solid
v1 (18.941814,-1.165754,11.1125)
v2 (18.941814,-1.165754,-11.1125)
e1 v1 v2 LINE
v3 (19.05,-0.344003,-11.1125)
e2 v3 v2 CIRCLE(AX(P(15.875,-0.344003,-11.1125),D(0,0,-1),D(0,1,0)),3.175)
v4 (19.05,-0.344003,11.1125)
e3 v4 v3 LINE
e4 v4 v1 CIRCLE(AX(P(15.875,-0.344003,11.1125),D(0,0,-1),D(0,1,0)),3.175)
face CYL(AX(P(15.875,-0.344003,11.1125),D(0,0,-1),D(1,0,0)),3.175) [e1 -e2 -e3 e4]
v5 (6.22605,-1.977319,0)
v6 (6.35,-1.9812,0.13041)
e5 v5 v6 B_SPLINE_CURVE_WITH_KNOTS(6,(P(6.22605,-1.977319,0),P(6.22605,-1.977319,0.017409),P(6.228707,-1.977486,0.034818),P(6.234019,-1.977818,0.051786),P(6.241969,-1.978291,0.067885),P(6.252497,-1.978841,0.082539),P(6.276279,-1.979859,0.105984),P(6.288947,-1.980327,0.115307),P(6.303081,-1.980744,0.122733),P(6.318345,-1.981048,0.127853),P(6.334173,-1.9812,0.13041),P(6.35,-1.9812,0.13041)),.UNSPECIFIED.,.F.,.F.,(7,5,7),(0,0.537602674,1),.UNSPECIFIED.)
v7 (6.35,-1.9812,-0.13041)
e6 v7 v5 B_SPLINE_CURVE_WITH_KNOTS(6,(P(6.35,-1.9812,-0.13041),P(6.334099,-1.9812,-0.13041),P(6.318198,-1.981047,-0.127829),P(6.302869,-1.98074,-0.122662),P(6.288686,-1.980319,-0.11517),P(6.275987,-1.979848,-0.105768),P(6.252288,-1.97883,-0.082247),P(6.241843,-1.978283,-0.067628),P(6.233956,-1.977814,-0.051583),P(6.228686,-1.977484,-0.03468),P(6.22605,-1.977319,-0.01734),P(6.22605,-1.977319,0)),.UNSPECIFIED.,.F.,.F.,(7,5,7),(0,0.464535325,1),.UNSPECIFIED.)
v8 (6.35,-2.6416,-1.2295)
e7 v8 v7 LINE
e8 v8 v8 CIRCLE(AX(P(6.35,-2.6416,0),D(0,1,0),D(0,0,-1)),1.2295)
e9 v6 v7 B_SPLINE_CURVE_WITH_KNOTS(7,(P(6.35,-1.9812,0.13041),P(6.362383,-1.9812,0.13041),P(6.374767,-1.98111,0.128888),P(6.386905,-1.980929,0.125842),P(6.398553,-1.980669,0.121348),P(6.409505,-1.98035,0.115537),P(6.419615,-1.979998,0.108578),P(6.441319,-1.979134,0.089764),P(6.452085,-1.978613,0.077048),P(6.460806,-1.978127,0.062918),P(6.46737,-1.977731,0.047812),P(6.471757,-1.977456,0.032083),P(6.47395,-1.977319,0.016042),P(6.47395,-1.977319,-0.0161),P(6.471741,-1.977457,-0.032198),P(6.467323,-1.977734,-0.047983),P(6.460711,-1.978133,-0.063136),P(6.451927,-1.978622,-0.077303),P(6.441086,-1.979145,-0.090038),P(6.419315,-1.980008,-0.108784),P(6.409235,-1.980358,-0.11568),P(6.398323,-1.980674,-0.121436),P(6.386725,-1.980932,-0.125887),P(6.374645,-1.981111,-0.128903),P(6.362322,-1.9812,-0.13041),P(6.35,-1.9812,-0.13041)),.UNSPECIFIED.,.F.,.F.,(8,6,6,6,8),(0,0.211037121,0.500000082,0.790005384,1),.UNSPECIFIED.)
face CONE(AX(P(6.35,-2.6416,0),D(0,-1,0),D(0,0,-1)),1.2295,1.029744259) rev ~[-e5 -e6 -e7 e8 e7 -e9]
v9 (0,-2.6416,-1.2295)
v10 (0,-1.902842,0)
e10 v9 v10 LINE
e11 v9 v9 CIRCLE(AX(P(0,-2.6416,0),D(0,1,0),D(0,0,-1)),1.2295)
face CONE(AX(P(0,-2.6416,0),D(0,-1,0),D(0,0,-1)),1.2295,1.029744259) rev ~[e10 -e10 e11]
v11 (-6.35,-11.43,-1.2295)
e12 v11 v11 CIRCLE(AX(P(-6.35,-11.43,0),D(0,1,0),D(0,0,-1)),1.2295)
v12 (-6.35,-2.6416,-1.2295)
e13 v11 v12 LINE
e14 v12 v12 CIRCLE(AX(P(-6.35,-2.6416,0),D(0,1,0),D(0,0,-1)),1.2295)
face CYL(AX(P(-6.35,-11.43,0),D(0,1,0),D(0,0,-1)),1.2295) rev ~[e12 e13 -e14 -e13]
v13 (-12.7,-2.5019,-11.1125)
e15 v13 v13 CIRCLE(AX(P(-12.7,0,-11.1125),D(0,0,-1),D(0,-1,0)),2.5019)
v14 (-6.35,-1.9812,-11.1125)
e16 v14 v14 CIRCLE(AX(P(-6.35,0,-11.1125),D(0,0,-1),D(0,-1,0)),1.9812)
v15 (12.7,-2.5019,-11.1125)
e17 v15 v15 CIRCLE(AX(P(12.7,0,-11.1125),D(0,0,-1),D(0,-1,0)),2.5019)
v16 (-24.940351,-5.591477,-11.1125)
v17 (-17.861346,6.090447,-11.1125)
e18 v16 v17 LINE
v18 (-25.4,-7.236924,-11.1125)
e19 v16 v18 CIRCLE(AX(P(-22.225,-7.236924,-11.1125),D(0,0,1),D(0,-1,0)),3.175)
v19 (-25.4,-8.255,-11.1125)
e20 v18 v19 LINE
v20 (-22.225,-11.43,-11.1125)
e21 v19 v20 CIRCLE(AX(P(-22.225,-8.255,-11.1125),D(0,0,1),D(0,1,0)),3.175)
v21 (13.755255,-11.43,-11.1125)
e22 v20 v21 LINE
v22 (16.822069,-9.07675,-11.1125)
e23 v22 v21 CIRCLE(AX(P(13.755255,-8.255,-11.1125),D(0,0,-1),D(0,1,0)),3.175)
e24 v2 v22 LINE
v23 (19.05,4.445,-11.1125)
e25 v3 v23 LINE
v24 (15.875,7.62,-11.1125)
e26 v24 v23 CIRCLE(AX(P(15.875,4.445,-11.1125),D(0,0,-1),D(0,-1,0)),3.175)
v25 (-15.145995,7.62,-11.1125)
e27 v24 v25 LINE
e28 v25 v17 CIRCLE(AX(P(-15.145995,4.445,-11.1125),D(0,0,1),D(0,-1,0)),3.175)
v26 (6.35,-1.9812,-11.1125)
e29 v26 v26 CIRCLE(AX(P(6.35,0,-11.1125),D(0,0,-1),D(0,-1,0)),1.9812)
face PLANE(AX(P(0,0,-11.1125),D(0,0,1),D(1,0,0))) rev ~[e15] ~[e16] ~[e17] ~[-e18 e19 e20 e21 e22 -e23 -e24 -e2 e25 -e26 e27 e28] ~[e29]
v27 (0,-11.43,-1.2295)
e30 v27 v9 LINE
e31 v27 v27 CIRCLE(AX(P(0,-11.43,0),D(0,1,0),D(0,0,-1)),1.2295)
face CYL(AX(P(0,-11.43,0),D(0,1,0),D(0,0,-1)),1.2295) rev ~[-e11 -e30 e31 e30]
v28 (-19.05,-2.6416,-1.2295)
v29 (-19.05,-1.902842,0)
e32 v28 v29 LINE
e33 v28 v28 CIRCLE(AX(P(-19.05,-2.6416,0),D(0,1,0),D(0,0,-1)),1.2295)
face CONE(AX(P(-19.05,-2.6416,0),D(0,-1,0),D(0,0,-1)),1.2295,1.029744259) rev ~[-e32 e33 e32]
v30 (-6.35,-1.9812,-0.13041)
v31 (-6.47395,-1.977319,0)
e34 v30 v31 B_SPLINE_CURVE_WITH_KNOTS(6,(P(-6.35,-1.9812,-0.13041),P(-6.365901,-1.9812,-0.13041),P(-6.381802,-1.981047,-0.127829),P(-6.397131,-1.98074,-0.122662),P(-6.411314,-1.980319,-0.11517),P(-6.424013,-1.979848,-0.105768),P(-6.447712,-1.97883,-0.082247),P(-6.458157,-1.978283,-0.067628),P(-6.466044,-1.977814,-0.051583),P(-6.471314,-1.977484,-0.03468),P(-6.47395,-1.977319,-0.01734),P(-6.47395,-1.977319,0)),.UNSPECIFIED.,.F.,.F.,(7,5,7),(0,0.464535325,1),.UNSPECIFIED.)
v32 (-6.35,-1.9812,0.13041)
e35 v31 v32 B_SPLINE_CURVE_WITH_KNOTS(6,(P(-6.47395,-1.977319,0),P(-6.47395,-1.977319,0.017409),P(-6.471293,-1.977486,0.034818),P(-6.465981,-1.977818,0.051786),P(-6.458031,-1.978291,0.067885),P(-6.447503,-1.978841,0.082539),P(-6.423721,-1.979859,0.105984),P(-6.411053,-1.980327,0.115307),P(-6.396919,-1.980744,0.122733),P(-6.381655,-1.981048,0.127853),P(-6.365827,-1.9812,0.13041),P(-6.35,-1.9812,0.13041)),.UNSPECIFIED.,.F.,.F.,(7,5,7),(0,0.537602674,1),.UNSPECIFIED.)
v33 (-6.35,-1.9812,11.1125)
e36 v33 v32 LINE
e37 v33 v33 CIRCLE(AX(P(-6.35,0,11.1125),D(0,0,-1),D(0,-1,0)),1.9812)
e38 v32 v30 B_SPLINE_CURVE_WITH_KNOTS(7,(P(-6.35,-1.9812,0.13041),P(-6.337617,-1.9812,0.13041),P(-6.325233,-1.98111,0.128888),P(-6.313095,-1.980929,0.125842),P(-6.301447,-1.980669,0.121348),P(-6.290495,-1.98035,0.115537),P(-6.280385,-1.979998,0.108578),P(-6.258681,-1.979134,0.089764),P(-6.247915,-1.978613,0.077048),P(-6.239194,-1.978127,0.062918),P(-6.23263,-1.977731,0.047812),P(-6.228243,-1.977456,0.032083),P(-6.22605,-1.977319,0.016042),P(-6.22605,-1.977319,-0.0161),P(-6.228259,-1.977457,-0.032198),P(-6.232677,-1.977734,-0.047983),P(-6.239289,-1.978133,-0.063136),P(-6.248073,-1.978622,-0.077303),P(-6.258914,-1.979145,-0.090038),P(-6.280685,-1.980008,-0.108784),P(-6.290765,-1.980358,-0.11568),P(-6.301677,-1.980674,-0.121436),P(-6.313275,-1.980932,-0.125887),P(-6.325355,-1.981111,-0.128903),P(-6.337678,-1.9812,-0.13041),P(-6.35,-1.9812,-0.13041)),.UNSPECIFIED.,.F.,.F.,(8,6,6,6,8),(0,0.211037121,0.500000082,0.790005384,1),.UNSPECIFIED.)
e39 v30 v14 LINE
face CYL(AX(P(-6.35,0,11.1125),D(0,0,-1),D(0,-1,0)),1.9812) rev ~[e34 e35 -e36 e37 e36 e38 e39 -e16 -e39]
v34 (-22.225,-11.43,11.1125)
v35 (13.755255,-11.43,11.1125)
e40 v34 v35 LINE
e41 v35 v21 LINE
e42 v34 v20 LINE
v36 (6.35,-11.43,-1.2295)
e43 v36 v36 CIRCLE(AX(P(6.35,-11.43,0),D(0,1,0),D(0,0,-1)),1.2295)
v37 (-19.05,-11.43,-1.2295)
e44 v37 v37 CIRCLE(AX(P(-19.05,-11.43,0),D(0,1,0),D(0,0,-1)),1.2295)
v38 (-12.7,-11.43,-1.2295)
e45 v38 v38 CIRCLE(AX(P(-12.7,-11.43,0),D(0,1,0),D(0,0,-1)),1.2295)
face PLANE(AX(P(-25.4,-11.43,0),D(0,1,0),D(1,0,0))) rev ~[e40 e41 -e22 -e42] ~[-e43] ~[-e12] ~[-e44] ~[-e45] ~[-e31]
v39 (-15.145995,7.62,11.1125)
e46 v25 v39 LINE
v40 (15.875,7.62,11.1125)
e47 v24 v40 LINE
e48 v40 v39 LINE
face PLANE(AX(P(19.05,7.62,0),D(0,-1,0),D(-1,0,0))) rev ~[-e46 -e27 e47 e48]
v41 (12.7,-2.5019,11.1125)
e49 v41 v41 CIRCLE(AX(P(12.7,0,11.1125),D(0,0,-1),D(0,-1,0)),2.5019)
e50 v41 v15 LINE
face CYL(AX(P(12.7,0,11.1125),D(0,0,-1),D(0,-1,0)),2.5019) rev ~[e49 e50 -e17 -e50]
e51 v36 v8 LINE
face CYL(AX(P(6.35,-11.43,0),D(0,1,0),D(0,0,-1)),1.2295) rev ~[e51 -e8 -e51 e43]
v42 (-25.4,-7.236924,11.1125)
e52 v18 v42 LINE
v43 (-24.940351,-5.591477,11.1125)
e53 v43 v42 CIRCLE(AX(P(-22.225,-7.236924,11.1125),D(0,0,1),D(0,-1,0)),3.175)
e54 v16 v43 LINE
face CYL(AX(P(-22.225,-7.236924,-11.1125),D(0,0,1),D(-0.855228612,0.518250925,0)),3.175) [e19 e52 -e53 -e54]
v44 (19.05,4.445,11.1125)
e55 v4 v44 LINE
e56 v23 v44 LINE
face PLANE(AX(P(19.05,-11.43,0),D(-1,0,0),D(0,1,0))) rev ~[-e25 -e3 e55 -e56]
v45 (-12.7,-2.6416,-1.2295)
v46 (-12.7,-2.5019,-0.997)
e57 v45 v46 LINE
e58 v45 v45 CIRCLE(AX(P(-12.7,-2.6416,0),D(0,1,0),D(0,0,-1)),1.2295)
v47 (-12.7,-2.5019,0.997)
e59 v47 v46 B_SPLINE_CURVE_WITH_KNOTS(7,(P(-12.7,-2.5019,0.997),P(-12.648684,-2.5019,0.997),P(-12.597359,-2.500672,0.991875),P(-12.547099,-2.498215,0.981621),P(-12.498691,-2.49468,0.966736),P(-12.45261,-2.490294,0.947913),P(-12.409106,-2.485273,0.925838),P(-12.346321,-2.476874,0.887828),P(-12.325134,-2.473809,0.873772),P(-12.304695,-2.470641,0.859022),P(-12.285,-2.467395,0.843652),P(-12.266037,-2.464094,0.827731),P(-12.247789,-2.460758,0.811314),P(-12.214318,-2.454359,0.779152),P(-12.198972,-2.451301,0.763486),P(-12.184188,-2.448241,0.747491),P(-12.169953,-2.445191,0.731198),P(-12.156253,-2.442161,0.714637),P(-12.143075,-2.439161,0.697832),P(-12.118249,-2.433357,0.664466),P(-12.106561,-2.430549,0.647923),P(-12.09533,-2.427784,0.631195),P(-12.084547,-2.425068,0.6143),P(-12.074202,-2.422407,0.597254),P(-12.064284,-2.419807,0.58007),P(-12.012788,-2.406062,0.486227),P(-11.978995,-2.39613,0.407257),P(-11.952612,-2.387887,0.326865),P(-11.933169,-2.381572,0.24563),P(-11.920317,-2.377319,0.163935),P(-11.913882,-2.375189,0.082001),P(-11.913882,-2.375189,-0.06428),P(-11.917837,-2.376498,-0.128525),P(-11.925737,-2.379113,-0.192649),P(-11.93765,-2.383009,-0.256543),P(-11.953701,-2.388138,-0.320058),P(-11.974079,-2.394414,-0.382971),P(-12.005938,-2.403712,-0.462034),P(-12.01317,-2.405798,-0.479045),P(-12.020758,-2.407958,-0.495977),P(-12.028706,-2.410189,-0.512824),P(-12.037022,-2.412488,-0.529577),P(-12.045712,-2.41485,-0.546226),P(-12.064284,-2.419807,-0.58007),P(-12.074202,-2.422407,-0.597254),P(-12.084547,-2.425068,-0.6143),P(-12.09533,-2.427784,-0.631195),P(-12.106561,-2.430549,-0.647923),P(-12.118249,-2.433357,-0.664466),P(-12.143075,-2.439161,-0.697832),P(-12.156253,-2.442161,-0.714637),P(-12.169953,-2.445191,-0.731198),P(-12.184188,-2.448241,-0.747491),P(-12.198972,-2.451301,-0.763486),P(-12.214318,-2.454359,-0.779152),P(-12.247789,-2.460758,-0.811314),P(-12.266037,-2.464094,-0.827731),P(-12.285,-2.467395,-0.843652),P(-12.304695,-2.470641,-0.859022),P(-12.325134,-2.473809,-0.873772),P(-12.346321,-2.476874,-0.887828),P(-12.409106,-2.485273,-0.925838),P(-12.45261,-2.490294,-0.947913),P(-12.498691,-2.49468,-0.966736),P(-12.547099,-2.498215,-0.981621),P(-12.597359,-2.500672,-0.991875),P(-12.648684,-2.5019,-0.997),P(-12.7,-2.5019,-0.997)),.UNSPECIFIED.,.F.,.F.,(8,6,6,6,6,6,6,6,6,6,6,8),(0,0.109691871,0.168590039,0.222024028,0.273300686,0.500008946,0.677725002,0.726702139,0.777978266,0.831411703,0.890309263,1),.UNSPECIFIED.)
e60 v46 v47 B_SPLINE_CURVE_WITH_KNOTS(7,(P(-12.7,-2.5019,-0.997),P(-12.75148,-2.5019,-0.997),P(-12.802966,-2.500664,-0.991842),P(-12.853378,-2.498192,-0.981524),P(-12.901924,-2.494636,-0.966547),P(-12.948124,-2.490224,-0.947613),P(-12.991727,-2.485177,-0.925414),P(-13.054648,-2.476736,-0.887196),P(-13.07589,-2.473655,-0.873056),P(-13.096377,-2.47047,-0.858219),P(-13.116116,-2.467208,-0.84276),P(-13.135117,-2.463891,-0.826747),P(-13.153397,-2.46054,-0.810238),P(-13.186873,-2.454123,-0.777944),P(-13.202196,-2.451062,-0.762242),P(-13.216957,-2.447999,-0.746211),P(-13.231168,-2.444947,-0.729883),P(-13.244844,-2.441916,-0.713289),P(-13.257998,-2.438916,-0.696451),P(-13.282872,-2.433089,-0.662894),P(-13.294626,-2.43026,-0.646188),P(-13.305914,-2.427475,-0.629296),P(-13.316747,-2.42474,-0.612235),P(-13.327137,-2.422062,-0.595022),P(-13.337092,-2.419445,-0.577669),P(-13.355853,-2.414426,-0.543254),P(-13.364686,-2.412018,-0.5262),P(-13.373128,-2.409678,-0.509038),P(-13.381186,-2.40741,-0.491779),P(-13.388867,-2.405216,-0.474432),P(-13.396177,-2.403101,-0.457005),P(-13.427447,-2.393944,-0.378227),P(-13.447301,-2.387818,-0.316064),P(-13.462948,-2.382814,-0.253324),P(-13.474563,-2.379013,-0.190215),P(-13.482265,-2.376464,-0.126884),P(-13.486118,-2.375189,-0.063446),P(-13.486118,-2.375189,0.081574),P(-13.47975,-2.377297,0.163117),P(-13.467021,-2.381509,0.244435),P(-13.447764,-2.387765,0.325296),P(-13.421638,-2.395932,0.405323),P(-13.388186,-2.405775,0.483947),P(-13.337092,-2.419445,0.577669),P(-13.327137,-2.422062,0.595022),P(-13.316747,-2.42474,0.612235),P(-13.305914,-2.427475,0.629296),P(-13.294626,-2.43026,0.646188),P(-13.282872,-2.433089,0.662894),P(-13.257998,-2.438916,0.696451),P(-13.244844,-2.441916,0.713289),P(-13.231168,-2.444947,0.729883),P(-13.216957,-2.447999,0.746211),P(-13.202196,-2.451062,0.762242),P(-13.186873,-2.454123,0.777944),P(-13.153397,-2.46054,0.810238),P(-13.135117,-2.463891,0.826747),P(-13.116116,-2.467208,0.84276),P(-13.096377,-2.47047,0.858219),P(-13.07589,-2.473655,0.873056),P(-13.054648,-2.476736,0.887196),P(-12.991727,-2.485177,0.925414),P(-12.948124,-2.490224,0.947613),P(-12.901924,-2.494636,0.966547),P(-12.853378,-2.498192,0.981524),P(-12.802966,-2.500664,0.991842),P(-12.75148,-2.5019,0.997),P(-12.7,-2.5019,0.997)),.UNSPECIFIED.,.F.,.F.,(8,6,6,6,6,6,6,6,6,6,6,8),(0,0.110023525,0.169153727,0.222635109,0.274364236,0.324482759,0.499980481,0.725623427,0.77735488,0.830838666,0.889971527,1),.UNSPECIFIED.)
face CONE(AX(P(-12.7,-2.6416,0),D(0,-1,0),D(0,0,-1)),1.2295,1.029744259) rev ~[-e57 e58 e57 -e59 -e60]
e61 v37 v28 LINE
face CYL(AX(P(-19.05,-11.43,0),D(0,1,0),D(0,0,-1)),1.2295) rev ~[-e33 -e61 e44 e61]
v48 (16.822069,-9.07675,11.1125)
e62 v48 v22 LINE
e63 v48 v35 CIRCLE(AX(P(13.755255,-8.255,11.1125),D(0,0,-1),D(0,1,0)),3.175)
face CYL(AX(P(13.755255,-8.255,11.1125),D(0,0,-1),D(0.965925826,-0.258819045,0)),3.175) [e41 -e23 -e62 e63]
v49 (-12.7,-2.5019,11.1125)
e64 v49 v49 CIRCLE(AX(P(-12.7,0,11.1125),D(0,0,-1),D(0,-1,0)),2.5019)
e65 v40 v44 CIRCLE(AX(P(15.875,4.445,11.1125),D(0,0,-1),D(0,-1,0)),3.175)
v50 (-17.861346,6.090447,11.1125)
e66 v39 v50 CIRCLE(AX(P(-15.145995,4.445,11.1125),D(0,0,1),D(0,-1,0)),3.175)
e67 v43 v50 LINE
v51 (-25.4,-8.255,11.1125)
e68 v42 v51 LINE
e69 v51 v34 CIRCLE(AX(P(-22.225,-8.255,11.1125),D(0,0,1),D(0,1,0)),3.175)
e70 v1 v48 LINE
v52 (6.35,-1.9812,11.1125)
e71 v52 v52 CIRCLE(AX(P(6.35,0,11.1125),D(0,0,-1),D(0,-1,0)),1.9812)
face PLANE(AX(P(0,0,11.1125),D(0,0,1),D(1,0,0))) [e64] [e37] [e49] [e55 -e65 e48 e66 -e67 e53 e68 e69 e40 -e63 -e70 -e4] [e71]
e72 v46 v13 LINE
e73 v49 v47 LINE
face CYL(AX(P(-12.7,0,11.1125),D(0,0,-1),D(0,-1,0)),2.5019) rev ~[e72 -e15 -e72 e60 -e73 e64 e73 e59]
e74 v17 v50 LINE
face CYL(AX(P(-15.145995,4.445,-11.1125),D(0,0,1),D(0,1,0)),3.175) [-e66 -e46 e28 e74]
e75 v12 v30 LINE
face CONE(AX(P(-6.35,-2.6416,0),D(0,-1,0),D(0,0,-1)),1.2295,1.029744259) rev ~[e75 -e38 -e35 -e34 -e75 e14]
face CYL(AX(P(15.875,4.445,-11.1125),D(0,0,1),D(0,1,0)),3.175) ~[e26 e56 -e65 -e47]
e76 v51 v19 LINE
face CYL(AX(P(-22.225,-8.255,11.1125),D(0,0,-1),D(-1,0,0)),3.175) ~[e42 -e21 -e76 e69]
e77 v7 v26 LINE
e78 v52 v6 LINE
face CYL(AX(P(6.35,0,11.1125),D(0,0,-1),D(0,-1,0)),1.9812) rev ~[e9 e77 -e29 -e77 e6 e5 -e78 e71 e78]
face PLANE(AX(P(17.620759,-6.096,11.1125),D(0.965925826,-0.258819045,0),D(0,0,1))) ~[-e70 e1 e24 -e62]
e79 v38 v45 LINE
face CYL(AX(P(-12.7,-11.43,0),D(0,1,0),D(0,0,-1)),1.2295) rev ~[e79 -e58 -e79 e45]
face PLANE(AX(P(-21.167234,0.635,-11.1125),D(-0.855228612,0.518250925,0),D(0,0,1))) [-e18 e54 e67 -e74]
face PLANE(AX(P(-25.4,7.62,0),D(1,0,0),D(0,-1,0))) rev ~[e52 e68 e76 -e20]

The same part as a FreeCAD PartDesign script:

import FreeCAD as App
import Part
import Sketcher

V = App.Vector
Q = App.Units.Quantity


def edges_at(feature, points):
    """Names of the edges that pass closest to the given points."""
    edges = feature.Shape.Edges
    near = lambda p: min(range(len(edges)), key=lambda i: edges[i].distToShape(Part.Vertex(*p))[0])
    return sorted({f"Edge{near(p) + 1}" for p in points})


def add_polygon(sketch, points):
    """Adds a closed chain of lines whose ends are joined by coincident constraints."""
    first, n = sketch.GeometryCount, len(points)
    for a, b in zip(points, points[1:] + points[:1]):
        sketch.addGeometry(Part.LineSegment(App.Vector(*a, 0), App.Vector(*b, 0)), False)
    for i in range(n):
        sketch.addConstraint(Sketcher.Constraint("Coincident", first + i, 2, first + (i + 1) % n, 1))

doc = App.newDocument("Part")
body = doc.addObject("PartDesign::Body", "Body")

sketch1 = doc.addObject("Sketcher::SketchObject", "Sketch")
body.addObject(sketch1)
sketch1.AttachmentSupport = (doc.XY_Plane, [""])
sketch1.MapMode = "FlatFace"
add_polygon(sketch1, [(19, -11), (19, 8), (-25, 8), (-25, -11)])
sketch1.addConstraint([
    Sketcher.Constraint("Vertical", 0),
    Sketcher.Constraint("Horizontal", 1),
    Sketcher.Constraint("Vertical", 2),
    Sketcher.Constraint("Horizontal", 3),
    Sketcher.Constraint("DistanceX", 1, 2, -1, 1, Q("1 in")),
    Sketcher.Constraint("DistanceX", 1, 2, 1, 1, Q("1.75 in")),
    Sketcher.Constraint("DistanceY", 0, 1, 0, 2, Q("0.75 in")),
    Sketcher.Constraint("DistanceY", 2, 2, -1, 1, Q("0.45 in")),
])
pad1 = doc.addObject("PartDesign::Pad", "Pad")
body.addObject(pad1)
pad1.Profile = sketch1
pad1.Length = Q("0.875 in")
pad1.Midplane = True

sketch2 = doc.addObject("Sketcher::SketchObject", "Sketch001")
body.addObject(sketch2)
sketch2.AttachmentSupport = (doc.XY_Plane, [""])
sketch2.MapMode = "FlatFace"
sketch2.AttachmentOffset = App.Placement(V(0, 0, 0.4375 * 25.4), App.Rotation())
sketch2.addGeometry([
    Part.Circle(V(-12.7, 0, 0), V(0, 0, 1), 2.5),
    Part.Circle(V(12.7, 0, 0), V(0, 0, 1), 2.5),
], False)
sketch2.addConstraint([
    Sketcher.Constraint("Equal", 0, 1),
    Sketcher.Constraint("Symmetric", 0, 3, 1, 3, -1, 1),
    Sketcher.Constraint("PointOnObject", 0, 3, -1),
    Sketcher.Constraint("Diameter", 0, Q("0.197 in")),
    Sketcher.Constraint("DistanceX", 0, 3, 1, 3, Q("1 in")),
])
doc.recompute()
hole = doc.addObject("PartDesign::Hole", "Hole")
body.addObject(hole)
hole.Profile = sketch2
hole.ThreadType = "None"
hole.Diameter = Q("0.197 in")
hole.DepthType = "ThroughAll"

sketch3 = doc.addObject("Sketcher::SketchObject", "Sketch002")
body.addObject(sketch3)
sketch3.AttachmentSupport = (doc.XY_Plane, [""])
sketch3.MapMode = "FlatFace"
sketch3.AttachmentOffset = App.Placement(V(0, 0, 0.4375 * 25.4), App.Rotation())
sketch3.addGeometry([
    Part.Circle(V(-6.3, 0, 0), V(0, 0, 1), 2),
    Part.Circle(V(6.3, 0, 0), V(0, 0, 1), 2),
], False)
sketch3.addConstraint([
    Sketcher.Constraint("Equal", 0, 1),
    Sketcher.Constraint("Symmetric", 0, 3, 1, 3, -1, 1),
    Sketcher.Constraint("PointOnObject", 0, 3, -1),
    Sketcher.Constraint("Diameter", 0, Q("0.156 in")),
    Sketcher.Constraint("DistanceX", 0, 3, 1, 3, Q("0.5 in")),
])
doc.recompute()
hole2 = doc.addObject("PartDesign::Hole", "Hole001")
body.addObject(hole2)
hole2.Profile = sketch3
hole2.ThreadType = "None"
hole2.Diameter = Q("0.156 in")
hole2.DepthType = "ThroughAll"

sketch4 = doc.addObject("Sketcher::SketchObject", "Sketch003")
body.addObject(sketch4)
sketch4.AttachmentSupport = (doc.XZ_Plane, [""])
sketch4.MapMode = "FlatFace"
sketch4.AttachmentOffset = App.Placement(V(0, 0, 0.45 * 25.4), App.Rotation())
sketch4.addGeometry([
    Part.Circle(V(-19.1, 0, 0), V(0, 0, 1), 1.2),
    Part.Circle(V(-12.7, 0, 0), V(0, 0, 1), 1.2),
    Part.Circle(V(-6.3, 0, 0), V(0, 0, 1), 1.2),
    Part.Circle(V(0, 0, 0), V(0, 0, 1), 1.2),
    Part.Circle(V(6.3, 0, 0), V(0, 0, 1), 1.2),
], False)
sketch4.addConstraint([
    Sketcher.Constraint("Coincident", 3, 3, -1, 1),
    Sketcher.Constraint("Equal", 0, 1),
    Sketcher.Constraint("Equal", 1, 2),
    Sketcher.Constraint("Equal", 2, 3),
    Sketcher.Constraint("Equal", 3, 4),
    Sketcher.Constraint("Symmetric", 2, 3, 4, 3, -1, 1),
    Sketcher.Constraint("PointOnObject", 0, 3, -1),
    Sketcher.Constraint("PointOnObject", 1, 3, -1),
    Sketcher.Constraint("PointOnObject", 2, 3, -1),
    Sketcher.Constraint("DistanceX", 0, 3, 4, 3, Q("1 in")),
    Sketcher.Constraint("Diameter", 0, Q("0.0968 in")),
    Sketcher.Constraint("DistanceX", 1, 3, -1, 1, Q("0.5 in")),
    Sketcher.Constraint("DistanceX", 0, 3, 2, 3, Q("0.5 in")),
])
doc.recompute()
hole3 = doc.addObject("PartDesign::Hole", "Hole002")
body.addObject(hole3)
hole3.Profile = sketch4
hole3.ThreadType = "None"
hole3.Diameter = Q("0.096811 in")
hole3.DepthType = "Dimension"
hole3.Depth = Q("0.346 in")
hole3.DrillPoint = "Angled"
hole3.DrillPointAngle = 118
doc.recompute()

chamfer = doc.addObject("PartDesign::Chamfer", "Chamfer")
body.addObject(chamfer)
chamfer.Base = (hole3, edges_at(hole3, [(19.05, -11.43, 0)]))
chamfer.ChamferType = "Distance and Angle"
chamfer.Size = Q("0.42 in")
chamfer.Angle = 15
doc.recompute()

chamfer2 = doc.addObject("PartDesign::Chamfer", "Chamfer001")
body.addObject(chamfer2)
chamfer2.Base = (chamfer, edges_at(chamfer, [(-25.4, 7.62, 0)]))
chamfer2.ChamferType = "Distance and Angle"
chamfer2.Size = Q("0.55 in")
chamfer2.Angle = 31.215
chamfer2.FlipDirection = True
doc.recompute()

fillet = doc.addObject("PartDesign::Fillet", "Fillet")
body.addObject(fillet)
fillet.Base = (chamfer2, edges_at(chamfer2, [
    (16.192, -11.43, 0),
    (-25.4, -11.43, 0),
    (-25.4, -6.35, 0),
    (-16.935, 7.62, 0),
    (19.05, 7.62, 0),
    (19.05, -0.762, 0),
]))
fillet.Radius = Q("0.125 in")

doc.recompute()
